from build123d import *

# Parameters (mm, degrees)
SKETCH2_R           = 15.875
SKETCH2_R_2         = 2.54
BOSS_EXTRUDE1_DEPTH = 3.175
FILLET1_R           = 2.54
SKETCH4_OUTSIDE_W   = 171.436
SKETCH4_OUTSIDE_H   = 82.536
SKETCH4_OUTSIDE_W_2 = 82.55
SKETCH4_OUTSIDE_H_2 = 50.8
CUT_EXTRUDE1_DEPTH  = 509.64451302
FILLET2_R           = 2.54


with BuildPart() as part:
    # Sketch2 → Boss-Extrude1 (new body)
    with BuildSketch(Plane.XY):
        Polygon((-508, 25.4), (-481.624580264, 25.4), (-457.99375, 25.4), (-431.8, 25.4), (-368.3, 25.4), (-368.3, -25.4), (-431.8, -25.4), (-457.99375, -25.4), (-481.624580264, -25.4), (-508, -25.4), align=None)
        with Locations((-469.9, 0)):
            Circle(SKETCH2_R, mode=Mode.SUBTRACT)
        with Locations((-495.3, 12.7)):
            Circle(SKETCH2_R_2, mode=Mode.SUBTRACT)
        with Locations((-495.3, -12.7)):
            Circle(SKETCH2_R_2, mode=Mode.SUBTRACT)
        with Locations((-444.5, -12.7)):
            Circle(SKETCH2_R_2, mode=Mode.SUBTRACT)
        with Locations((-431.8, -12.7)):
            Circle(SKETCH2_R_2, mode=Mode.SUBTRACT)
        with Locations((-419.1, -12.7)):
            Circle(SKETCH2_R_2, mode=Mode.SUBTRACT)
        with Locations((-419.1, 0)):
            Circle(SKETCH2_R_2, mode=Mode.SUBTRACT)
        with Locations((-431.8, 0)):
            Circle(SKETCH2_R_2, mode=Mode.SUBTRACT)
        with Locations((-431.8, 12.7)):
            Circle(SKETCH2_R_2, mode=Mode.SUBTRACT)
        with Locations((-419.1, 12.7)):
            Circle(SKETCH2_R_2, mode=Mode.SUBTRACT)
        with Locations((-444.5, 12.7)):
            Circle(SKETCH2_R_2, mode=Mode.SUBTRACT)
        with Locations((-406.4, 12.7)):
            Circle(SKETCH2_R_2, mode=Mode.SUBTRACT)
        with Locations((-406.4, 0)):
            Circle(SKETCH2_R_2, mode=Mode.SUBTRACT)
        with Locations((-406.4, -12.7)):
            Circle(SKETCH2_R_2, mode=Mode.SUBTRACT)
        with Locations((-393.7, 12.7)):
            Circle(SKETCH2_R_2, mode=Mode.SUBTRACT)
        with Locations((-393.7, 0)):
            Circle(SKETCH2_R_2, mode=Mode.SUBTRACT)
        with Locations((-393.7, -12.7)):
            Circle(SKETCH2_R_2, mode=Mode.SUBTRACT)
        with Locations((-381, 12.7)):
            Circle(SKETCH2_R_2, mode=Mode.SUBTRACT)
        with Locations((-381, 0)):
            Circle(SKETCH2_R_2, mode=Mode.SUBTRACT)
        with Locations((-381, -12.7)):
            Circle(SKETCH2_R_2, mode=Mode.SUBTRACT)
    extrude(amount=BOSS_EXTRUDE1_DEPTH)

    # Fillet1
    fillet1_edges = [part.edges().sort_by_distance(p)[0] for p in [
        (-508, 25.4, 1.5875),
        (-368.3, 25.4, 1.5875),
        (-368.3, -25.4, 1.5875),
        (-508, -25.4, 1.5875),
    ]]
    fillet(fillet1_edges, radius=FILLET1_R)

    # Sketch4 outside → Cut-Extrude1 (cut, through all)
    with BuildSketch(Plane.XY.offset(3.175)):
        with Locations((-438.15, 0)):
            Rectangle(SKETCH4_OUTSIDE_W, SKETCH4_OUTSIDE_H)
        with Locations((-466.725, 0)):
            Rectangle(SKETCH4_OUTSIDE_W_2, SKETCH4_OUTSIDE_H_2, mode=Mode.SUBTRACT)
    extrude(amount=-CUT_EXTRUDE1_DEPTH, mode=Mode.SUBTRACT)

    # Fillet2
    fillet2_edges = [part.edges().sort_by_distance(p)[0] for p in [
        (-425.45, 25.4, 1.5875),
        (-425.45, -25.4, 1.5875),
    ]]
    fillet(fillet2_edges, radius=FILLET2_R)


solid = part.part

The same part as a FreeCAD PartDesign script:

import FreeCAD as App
import Part
import Sketcher
Q = App.Units.Quantity


def edges_at(feature, points):
    """Names of the edges that pass closest to the given points."""
    edges = feature.Shape.Edges
    near = lambda p: min(range(len(edges)), key=lambda i: edges[i].distToShape(Part.Vertex(*p))[0])
    return sorted({f"Edge{near(p) + 1}" for p in points})

doc = App.newDocument("Part")
body = doc.addObject("PartDesign::Body", "Body")

sketch1 = doc.addObject("Sketcher::SketchObject", "Sketch")
body.addObject(sketch1)
sketch1.AttachmentSupport = (doc.XY_Plane, [""])
sketch1.MapMode = "FlatFace"
sketch1.addGeometry(Part.LineSegment(App.Vector(-368.3, 25.4, 0), App.Vector(-508, 25.4, 0)), False)
sketch1.addGeometry(Part.LineSegment(App.Vector(-508, 25.4, 0), App.Vector(-508, -25.4, 0)), False)
sketch1.addGeometry(Part.LineSegment(App.Vector(-508, -25.4, 0), App.Vector(-368.3, -25.4, 0)), False)
sketch1.addGeometry(Part.LineSegment(App.Vector(-368.3, -25.4, 0), App.Vector(-368.3, 25.4, 0)), False)
sketch1.addGeometry(Part.Circle(App.Vector(-381, -12.7, 0), App.Vector(0, 0, 1), 2.54), False)
sketch1.addGeometry(Part.Circle(App.Vector(-393.7, -12.7, 0), App.Vector(0, 0, 1), 2.54), False)
sketch1.addGeometry(Part.Circle(App.Vector(-406.4, -12.7, 0), App.Vector(0, 0, 1), 2.54), False)
sketch1.addGeometry(Part.Circle(App.Vector(-419.1, -12.7, 0), App.Vector(0, 0, 1), 2.54), False)
sketch1.addGeometry(Part.Circle(App.Vector(-431.8, -12.7, 0), App.Vector(0, 0, 1), 2.54), False)
sketch1.addGeometry(Part.Circle(App.Vector(-444.5, -12.7, 0), App.Vector(0, 0, 1), 2.54), False)
sketch1.addGeometry(Part.Circle(App.Vector(-495.3, -12.7, 0), App.Vector(0, 0, 1), 2.54), False)
sketch1.addGeometry(Part.Circle(App.Vector(-381, 0, 0), App.Vector(0, 0, 1), 2.54), False)
sketch1.addGeometry(Part.Circle(App.Vector(-393.7, 0, 0), App.Vector(0, 0, 1), 2.54), False)
sketch1.addGeometry(Part.Circle(App.Vector(-406.4, 0, 0), App.Vector(0, 0, 1), 2.54), False)
sketch1.addGeometry(Part.Circle(App.Vector(-419.1, 0, 0), App.Vector(0, 0, 1), 2.54), False)
sketch1.addGeometry(Part.Circle(App.Vector(-431.8, 0, 0), App.Vector(0, 0, 1), 2.54), False)
sketch1.addGeometry(Part.Circle(App.Vector(-381, 12.7, 0), App.Vector(0, 0, 1), 2.54), False)
sketch1.addGeometry(Part.Circle(App.Vector(-393.7, 12.7, 0), App.Vector(0, 0, 1), 2.54), False)
sketch1.addGeometry(Part.Circle(App.Vector(-406.4, 12.7, 0), App.Vector(0, 0, 1), 2.54), False)
sketch1.addGeometry(Part.Circle(App.Vector(-419.1, 12.7, 0), App.Vector(0, 0, 1), 2.54), False)
sketch1.addGeometry(Part.Circle(App.Vector(-431.8, 12.7, 0), App.Vector(0, 0, 1), 2.54), False)
sketch1.addGeometry(Part.Circle(App.Vector(-469.9, 0, 0), App.Vector(0, 0, 1), 15.875), False)
sketch1.addGeometry(Part.Circle(App.Vector(-444.5, 12.7, 0), App.Vector(0, 0, 1), 2.54), False)
sketch1.addGeometry(Part.Circle(App.Vector(-495.3, 12.7, 0), App.Vector(0, 0, 1), 2.54), False)
sketch1.addConstraint(Sketcher.Constraint("Coincident", 0, 2, 1, 1))
sketch1.addConstraint(Sketcher.Constraint("Coincident", 1, 2, 2, 1))
sketch1.addConstraint(Sketcher.Constraint("Coincident", 2, 2, 3, 1))
sketch1.addConstraint(Sketcher.Constraint("Coincident", 3, 2, 0, 1))
sketch1.addConstraint(Sketcher.Constraint("Horizontal", 0))
sketch1.addConstraint(Sketcher.Constraint("Vertical", 1))
sketch1.addConstraint(Sketcher.Constraint("Horizontal", 2))
sketch1.addConstraint(Sketcher.Constraint("Vertical", 3))
sketch1.addConstraint(Sketcher.Constraint("Equal", 4, 5))
sketch1.addConstraint(Sketcher.Constraint("Equal", 5, 6))
sketch1.addConstraint(Sketcher.Constraint("Equal", 6, 7))
sketch1.addConstraint(Sketcher.Constraint("Equal", 7, 8))
sketch1.addConstraint(Sketcher.Constraint("Equal", 8, 9))
sketch1.addConstraint(Sketcher.Constraint("Equal", 9, 10))
sketch1.addConstraint(Sketcher.Constraint("Equal", 10, 11))
sketch1.addConstraint(Sketcher.Constraint("Equal", 11, 12))
sketch1.addConstraint(Sketcher.Constraint("Equal", 12, 13))
sketch1.addConstraint(Sketcher.Constraint("Equal", 13, 14))
sketch1.addConstraint(Sketcher.Constraint("Equal", 14, 15))
sketch1.addConstraint(Sketcher.Constraint("Equal", 15, 16))
sketch1.addConstraint(Sketcher.Constraint("Equal", 16, 17))
sketch1.addConstraint(Sketcher.Constraint("Equal", 17, 18))
sketch1.addConstraint(Sketcher.Constraint("Equal", 18, 19))
sketch1.addConstraint(Sketcher.Constraint("Equal", 19, 20))
sketch1.addConstraint(Sketcher.Constraint("Equal", 20, 22))
sketch1.addConstraint(Sketcher.Constraint("Equal", 22, 23))
sketch1.addConstraint(Sketcher.Constraint("Symmetric", 4, 3, 16, 3, -1))
sketch1.addConstraint(Sketcher.Constraint("Symmetric", 5, 3, 17, 3, -1))
sketch1.addConstraint(Sketcher.Constraint("Symmetric", 6, 3, 18, 3, -1))
sketch1.addConstraint(Sketcher.Constraint("Symmetric", 7, 3, 19, 3, -1))
sketch1.addConstraint(Sketcher.Constraint("Symmetric", 8, 3, 20, 3, -1))
sketch1.addConstraint(Sketcher.Constraint("Symmetric", 9, 3, 22, 3, -1))
sketch1.addConstraint(Sketcher.Constraint("Symmetric", 10, 3, 23, 3, -1))
sketch1.addConstraint(Sketcher.Constraint("PointOnObject", 11, 3, -1))
sketch1.addConstraint(Sketcher.Constraint("PointOnObject", 12, 3, -1))
sketch1.addConstraint(Sketcher.Constraint("PointOnObject", 13, 3, -1))
sketch1.addConstraint(Sketcher.Constraint("PointOnObject", 14, 3, -1))
sketch1.addConstraint(Sketcher.Constraint("PointOnObject", 15, 3, -1))
sketch1.addConstraint(Sketcher.Constraint("PointOnObject", 21, 3, -1))
sketch1.addConstraint(Sketcher.Constraint("Horizontal", 4, 3, 5, 3))
sketch1.addConstraint(Sketcher.Constraint("Horizontal", 5, 3, 6, 3))
sketch1.addConstraint(Sketcher.Constraint("Horizontal", 6, 3, 7, 3))
sketch1.addConstraint(Sketcher.Constraint("Horizontal", 7, 3, 8, 3))
sketch1.addConstraint(Sketcher.Constraint("Horizontal", 8, 3, 9, 3))
sketch1.addConstraint(Sketcher.Constraint("Horizontal", 9, 3, 10, 3))
sketch1.addConstraint(Sketcher.Constraint("Vertical", 4, 3, 11, 3))
sketch1.addConstraint(Sketcher.Constraint("Vertical", 5, 3, 12, 3))
sketch1.addConstraint(Sketcher.Constraint("Vertical", 6, 3, 13, 3))
sketch1.addConstraint(Sketcher.Constraint("Vertical", 7, 3, 14, 3))
sketch1.addConstraint(Sketcher.Constraint("Vertical", 8, 3, 15, 3))
sketch1.addConstraint(Sketcher.Constraint("Diameter", 4, Q("0.2 in")))
sketch1.addConstraint(Sketcher.Constraint("Diameter", 21, Q("1.25 in")))
sketch1.addConstraint(Sketcher.Constraint("DistanceY", 1, 2, 1, 1, Q("2 in")))
sketch1.addConstraint(Sketcher.Constraint("DistanceX", 0, 2, 0, 1, Q("5.5 in")))
sketch1.addConstraint(Sketcher.Constraint("DistanceX", 4, 3, -1, 1, Q("15 in")))
sketch1.addConstraint(Sketcher.Constraint("DistanceX", 6, 3, -1, 1, Q("16 in")))
sketch1.addConstraint(Sketcher.Constraint("DistanceX", 8, 3, -1, 1, Q("17 in")))
sketch1.addConstraint(Sketcher.Constraint("DistanceX", 0, 2, -1, 1, Q("20 in")))
sketch1.addConstraint(Sketcher.Constraint("DistanceY", -1, 1, 0, 2, Q("1 in")))
sketch1.addConstraint(Sketcher.Constraint("DistanceX", 7, 3, 5, 3, Q("1 in")))
sketch1.addConstraint(Sketcher.Constraint("DistanceX", 9, 3, 7, 3, Q("1 in")))
sketch1.addConstraint(Sketcher.Constraint("DistanceX", 10, 3, 9, 3, Q("2 in")))
sketch1.addConstraint(Sketcher.Constraint("DistanceY", 4, 3, 16, 3, Q("1 in")))
sketch1.addConstraint(Sketcher.Constraint("DistanceX", 21, 3, 9, 3, Q("1 in")))
sketch1.addConstraint(Sketcher.Constraint("DistanceX", 5, 3, 2, 2, Q("1 in")))
pad1 = doc.addObject("PartDesign::Pad", "Pad")
body.addObject(pad1)
pad1.Profile = sketch1
pad1.Length = Q("0.125 in")
doc.recompute()

fillet = doc.addObject("PartDesign::Fillet", "Fillet")
body.addObject(fillet)
fillet.Base = (pad1, edges_at(pad1, [
    (-508, 25.4, 1.587),
    (-368.3, 25.4, 1.587),
    (-368.3, -25.4, 1.587),
    (-508, -25.4, 1.587),
]))
fillet.Radius = Q("0.1 in")

sketch2 = doc.addObject("Sketcher::SketchObject", "Sketch001")
body.addObject(sketch2)
sketch2.AttachmentSupport = (doc.XY_Plane, [""])
sketch2.MapMode = "FlatFace"
sketch2.AttachmentOffset = App.Placement(App.Vector(0, 0, 0.125 * 25.4), App.Rotation())
sketch2.addGeometry(Part.LineSegment(App.Vector(-523.868, 41.268, 0), App.Vector(-523.868, -41.268, 0)), False)
sketch2.addGeometry(Part.LineSegment(App.Vector(-523.868, -41.268, 0), App.Vector(-352.432, -41.268, 0)), False)
sketch2.addGeometry(Part.LineSegment(App.Vector(-352.432, -41.268, 0), App.Vector(-352.432, 41.268, 0)), False)
sketch2.addGeometry(Part.LineSegment(App.Vector(-352.432, 41.268, 0), App.Vector(-523.868, 41.268, 0)), False)
sketch2.addGeometry(Part.LineSegment(App.Vector(-425.45, -25.4, 0), App.Vector(-508, -25.4, 0)), False)
sketch2.addGeometry(Part.LineSegment(App.Vector(-508, -25.4, 0), App.Vector(-508, 25.4, 0)), False)
sketch2.addGeometry(Part.LineSegment(App.Vector(-508, 25.4, 0), App.Vector(-425.45, 25.4, 0)), False)
sketch2.addGeometry(Part.LineSegment(App.Vector(-425.45, 25.4, 0), App.Vector(-425.45, -25.4, 0)), False)
sketch2.addConstraint(Sketcher.Constraint("Coincident", 0, 2, 1, 1))
sketch2.addConstraint(Sketcher.Constraint("Coincident", 1, 2, 2, 1))
sketch2.addConstraint(Sketcher.Constraint("Coincident", 2, 2, 3, 1))
sketch2.addConstraint(Sketcher.Constraint("Coincident", 3, 2, 0, 1))
sketch2.addConstraint(Sketcher.Constraint("Coincident", 4, 2, 5, 1))
sketch2.addConstraint(Sketcher.Constraint("Coincident", 5, 2, 6, 1))
sketch2.addConstraint(Sketcher.Constraint("Coincident", 6, 2, 7, 1))
sketch2.addConstraint(Sketcher.Constraint("Coincident", 7, 2, 4, 1))
sketch2.addConstraint(Sketcher.Constraint("Vertical", 0))
sketch2.addConstraint(Sketcher.Constraint("Horizontal", 1))
sketch2.addConstraint(Sketcher.Constraint("Vertical", 2))
sketch2.addConstraint(Sketcher.Constraint("Horizontal", 3))
sketch2.addConstraint(Sketcher.Constraint("Horizontal", 4))
sketch2.addConstraint(Sketcher.Constraint("Vertical", 5))
sketch2.addConstraint(Sketcher.Constraint("Horizontal", 6))
sketch2.addConstraint(Sketcher.Constraint("Vertical", 7))
sketch2.addConstraint(Sketcher.Constraint("DistanceY", 5, 1, 5, 2, Q("2 in")))
sketch2.addConstraint(Sketcher.Constraint("DistanceX", 4, 2, -1, 1, Q("20 in")))
sketch2.addConstraint(Sketcher.Constraint("DistanceY", 4, 2, -1, 1, Q("1 in")))
sketch2.addConstraint(Sketcher.Constraint("DistanceX", 4, 2, 4, 1, Q("3.25 in")))
sketch2.addConstraint(Sketcher.Constraint("DistanceX", 1, 1, 1, 2, 171.436))
sketch2.addConstraint(Sketcher.Constraint("DistanceY", 0, 2, 0, 1, 82.536))
sketch2.addConstraint(Sketcher.Constraint("DistanceX", 0, 2, -1, 1, 523.868))
sketch2.addConstraint(Sketcher.Constraint("DistanceY", 0, 2, -1, 1, 41.268))
pocket1 = doc.addObject("PartDesign::Pocket", "Pocket")
body.addObject(pocket1)
pocket1.Profile = sketch2
pocket1.Type = "ThroughAll"
doc.recompute()

fillet2 = doc.addObject("PartDesign::Fillet", "Fillet001")
body.addObject(fillet2)
fillet2.Base = (pocket1, edges_at(pocket1, [(-425.45, 25.4, 1.587), (-425.45, -25.4, 1.587)]))
fillet2.Radius = Q("0.1 in")

doc.recompute()
